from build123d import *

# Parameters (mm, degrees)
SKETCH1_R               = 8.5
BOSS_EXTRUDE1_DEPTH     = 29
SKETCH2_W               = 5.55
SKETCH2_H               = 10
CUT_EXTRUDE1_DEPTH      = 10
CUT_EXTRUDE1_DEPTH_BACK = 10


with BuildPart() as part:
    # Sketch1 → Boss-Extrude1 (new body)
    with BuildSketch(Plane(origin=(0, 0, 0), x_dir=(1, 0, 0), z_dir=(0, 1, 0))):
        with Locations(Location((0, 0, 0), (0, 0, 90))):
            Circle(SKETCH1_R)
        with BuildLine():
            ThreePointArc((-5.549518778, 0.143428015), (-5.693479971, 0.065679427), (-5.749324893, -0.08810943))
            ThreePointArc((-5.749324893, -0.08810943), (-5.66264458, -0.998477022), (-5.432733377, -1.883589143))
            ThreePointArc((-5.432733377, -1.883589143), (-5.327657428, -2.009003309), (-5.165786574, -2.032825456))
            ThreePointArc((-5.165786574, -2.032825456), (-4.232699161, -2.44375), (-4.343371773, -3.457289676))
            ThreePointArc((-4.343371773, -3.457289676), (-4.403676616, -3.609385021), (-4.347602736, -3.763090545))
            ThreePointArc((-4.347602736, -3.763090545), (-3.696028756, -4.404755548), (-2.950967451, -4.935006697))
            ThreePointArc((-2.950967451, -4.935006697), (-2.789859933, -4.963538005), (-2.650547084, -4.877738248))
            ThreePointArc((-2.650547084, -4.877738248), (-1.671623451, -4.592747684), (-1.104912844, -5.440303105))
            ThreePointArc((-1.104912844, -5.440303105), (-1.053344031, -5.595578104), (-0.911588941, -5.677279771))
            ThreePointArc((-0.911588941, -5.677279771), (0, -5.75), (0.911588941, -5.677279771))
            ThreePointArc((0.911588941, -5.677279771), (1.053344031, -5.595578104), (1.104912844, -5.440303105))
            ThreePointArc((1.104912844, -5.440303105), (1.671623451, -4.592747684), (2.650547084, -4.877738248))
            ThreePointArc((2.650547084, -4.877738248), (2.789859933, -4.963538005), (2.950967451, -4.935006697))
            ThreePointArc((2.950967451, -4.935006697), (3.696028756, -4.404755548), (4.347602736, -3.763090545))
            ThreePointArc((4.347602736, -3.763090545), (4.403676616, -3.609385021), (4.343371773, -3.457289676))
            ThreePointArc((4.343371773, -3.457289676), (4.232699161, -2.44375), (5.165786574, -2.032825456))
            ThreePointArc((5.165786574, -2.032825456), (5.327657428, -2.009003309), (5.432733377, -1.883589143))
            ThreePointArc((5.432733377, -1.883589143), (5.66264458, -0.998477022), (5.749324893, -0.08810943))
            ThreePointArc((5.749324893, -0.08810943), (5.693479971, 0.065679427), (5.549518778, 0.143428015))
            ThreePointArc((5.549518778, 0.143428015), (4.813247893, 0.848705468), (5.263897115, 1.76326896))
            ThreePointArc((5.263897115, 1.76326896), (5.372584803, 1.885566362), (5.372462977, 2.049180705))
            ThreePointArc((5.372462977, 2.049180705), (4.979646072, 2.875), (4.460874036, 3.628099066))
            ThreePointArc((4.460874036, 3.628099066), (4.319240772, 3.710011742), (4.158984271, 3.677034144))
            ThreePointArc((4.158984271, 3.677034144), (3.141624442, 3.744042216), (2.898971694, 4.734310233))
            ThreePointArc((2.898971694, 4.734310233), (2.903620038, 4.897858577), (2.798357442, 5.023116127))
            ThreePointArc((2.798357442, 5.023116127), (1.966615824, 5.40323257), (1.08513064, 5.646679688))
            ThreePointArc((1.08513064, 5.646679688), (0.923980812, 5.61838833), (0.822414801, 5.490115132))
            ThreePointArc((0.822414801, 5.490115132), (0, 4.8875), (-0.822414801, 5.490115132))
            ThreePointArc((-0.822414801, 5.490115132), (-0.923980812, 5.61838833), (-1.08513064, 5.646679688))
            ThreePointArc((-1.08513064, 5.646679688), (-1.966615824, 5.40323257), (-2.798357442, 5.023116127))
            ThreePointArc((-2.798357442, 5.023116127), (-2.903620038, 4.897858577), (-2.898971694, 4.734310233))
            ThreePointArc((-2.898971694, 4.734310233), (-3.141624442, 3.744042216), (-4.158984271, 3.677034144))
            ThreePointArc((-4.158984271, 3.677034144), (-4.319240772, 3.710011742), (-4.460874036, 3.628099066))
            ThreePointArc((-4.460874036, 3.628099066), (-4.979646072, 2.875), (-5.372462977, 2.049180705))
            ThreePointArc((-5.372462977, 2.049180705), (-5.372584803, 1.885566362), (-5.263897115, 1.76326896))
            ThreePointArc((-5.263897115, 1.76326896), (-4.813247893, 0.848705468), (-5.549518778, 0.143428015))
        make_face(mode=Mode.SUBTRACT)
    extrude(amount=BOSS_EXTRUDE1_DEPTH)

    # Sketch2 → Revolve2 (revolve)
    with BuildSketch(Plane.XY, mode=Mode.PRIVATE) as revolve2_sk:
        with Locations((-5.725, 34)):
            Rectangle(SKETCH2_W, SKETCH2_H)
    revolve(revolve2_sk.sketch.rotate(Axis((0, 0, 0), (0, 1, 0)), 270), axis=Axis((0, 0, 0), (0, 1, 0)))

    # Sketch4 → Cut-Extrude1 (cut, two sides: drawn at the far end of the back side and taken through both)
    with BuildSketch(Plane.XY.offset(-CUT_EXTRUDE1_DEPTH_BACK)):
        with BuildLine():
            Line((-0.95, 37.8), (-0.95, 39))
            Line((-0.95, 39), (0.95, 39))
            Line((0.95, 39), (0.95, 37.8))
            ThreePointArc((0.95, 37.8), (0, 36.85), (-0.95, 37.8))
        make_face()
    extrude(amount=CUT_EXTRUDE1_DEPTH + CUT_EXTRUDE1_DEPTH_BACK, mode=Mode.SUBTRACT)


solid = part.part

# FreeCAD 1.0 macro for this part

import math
import FreeCAD as App
import Part
import Sketcher
Q = App.Units.Quantity

doc = App.newDocument("Part")
params = doc.addObject("Spreadsheet::Sheet", "Params")
for row, (alias, value) in enumerate([
    ("sketch1_diameter", "17 mm"),
    ("sketch1_radius", "0.23 mm"),
    ("sketch1_radius2", "5.75 mm"),
    ("pad1_length", "29 mm"),
    ("sketch2_height", "10 mm"),
    ("sketch2_width", "5.55 mm"),
    ("revolution_angle", "360 deg"),
    ("sketch3_radius", "0.95 mm"),
    ("sketch3_height", "1.2 mm"),
], start=1):
    params.set(f"A{row}", alias)
    params.set(f"B{row}", "=" + value)
    params.setAlias(f"B{row}", alias)

body = doc.addObject("PartDesign::Body", "Body")

# Sketch on XZ plane
sketch1 = body.newObject("Sketcher::SketchObject", "Sketch")
sketch1.AttachmentSupport = (doc.getObject("XZ_Plane"), [""])
sketch1.MapMode = "FlatFace"
sketch1.addGeometry([
    Part.Circle(App.Vector(0, 0, 0), App.Vector(0, 0, 1), 8.5),  # 0
    Part.ArcOfCircle(Part.Circle(App.Vector(-5.519352, 0.084585, 0), App.Vector(0, 0, 1), 0.23), math.radians(179.122001), math.radians(262.46335)),  # 1
    Part.ArcOfCircle(Part.Circle(App.Vector(-5.662645, -0.998477, 0), App.Vector(0, 0, 1), 0.8625), math.radians(-62.46335), math.radians(82.46335)),  # 2
    Part.ArcOfCircle(Part.Circle(App.Vector(-5.157564, -1.967213, 0), App.Vector(0, 0, 1), 0.23), math.radians(117.536649), math.radians(200.878)),  # 3
    Part.ArcOfCircle(Part.Circle(App.Vector(0, 0, 0), App.Vector(0, 0, 1), 5.75), math.radians(-159.122001), math.radians(-140.877999)),  # 4
    Part.ArcOfCircle(Part.Circle(App.Vector(-4.282439, -3.482975, 0), App.Vector(0, 0, 1), 0.23), math.radians(-140.878), math.radians(-57.536649)),  # 5
    Part.ArcOfCircle(Part.Circle(App.Vector(-3.696029, -4.404756, 0), App.Vector(0, 0, 1), 0.8625), math.radians(-22.46335), math.radians(122.46335)),  # 6
    Part.ArcOfCircle(Part.Circle(App.Vector(-2.686423, -4.822191, 0), App.Vector(0, 0, 1), 0.23), math.radians(157.53665), math.radians(240.877999)),  # 7
    Part.ArcOfCircle(Part.Circle(App.Vector(0, 0, 0), App.Vector(0, 0, 1), 5.75), math.radians(-119.122001), math.radians(-100.877999)),  # 8
    Part.ArcOfCircle(Part.Circle(App.Vector(-1.041725, -5.420813, 0), App.Vector(0, 0, 1), 0.23), math.radians(-100.877999), math.radians(-17.53665)),  # 9
    Part.ArcOfCircle(Part.Circle(App.Vector(0, -5.75, 0), App.Vector(0, 0, 1), 0.8625), math.radians(17.53665), math.radians(162.46335)),  # 10
    Part.ArcOfCircle(Part.Circle(App.Vector(1.041725, -5.420813, 0), App.Vector(0, 0, 1), 0.23), math.radians(-162.46335), math.radians(-79.122001)),  # 11
    Part.ArcOfCircle(Part.Circle(App.Vector(0, 0, 0), App.Vector(0, 0, 1), 5.75), math.radians(-79.122001), math.radians(-60.877999)),  # 12
    Part.ArcOfCircle(Part.Circle(App.Vector(2.686423, -4.822191, 0), App.Vector(0, 0, 1), 0.23), math.radians(-60.877999), math.radians(22.46335)),  # 13
    Part.ArcOfCircle(Part.Circle(App.Vector(3.696029, -4.404756, 0), App.Vector(0, 0, 1), 0.8625), math.radians(57.53665), math.radians(202.46335)),  # 14
    Part.ArcOfCircle(Part.Circle(App.Vector(4.282439, -3.482975, 0), App.Vector(0, 0, 1), 0.23), math.radians(-122.463351), math.radians(-39.122)),  # 15
    Part.ArcOfCircle(Part.Circle(App.Vector(0, 0, 0), App.Vector(0, 0, 1), 5.75), math.radians(-39.122001), math.radians(-20.877999)),  # 16
    Part.ArcOfCircle(Part.Circle(App.Vector(5.157564, -1.967213, 0), App.Vector(0, 0, 1), 0.23), math.radians(-20.878), math.radians(62.463351)),  # 17
    Part.ArcOfCircle(Part.Circle(App.Vector(5.662645, -0.998477, 0), App.Vector(0, 0, 1), 0.8625), math.radians(97.53665), math.radians(242.46335)),  # 18
    Part.ArcOfCircle(Part.Circle(App.Vector(5.519352, 0.084585, 0), App.Vector(0, 0, 1), 0.23), math.radians(-82.46335), math.radians(0.877999)),  # 19
    Part.ArcOfCircle(Part.Circle(App.Vector(0, 0, 0), App.Vector(0, 0, 1), 5.75), math.radians(0.877999), math.radians(19.122001)),  # 20
    Part.ArcOfCircle(Part.Circle(App.Vector(5.215424, 1.808246, 0), App.Vector(0, 0, 1), 0.23), math.radians(19.122001), math.radians(102.46335)),  # 21
    Part.ArcOfCircle(Part.Circle(App.Vector(4.979646, 2.875, 0), App.Vector(0, 0, 1), 0.8625), math.radians(137.53665), math.radians(282.46335)),  # 22
    Part.ArcOfCircle(Part.Circle(App.Vector(4.173699, 3.612567, 0), App.Vector(0, 0, 1), 0.23), math.radians(-42.46335), math.radians(40.877999)),  # 23
    Part.ArcOfCircle(Part.Circle(App.Vector(0, 0, 0), App.Vector(0, 0, 1), 5.75), math.radians(40.877999), math.radians(59.122001)),  # 24
    Part.ArcOfCircle(Part.Circle(App.Vector(2.832929, 4.737606, 0), App.Vector(0, 0, 1), 0.23), math.radians(59.122), math.radians(142.463351)),  # 25
    Part.ArcOfCircle(Part.Circle(App.Vector(1.966616, 5.403233, 0), App.Vector(0, 0, 1), 0.8625), math.radians(177.53665), math.radians(322.46335)),  # 26
    Part.ArcOfCircle(Part.Circle(App.Vector(0.875125, 5.450189, 0), App.Vector(0, 0, 1), 0.23), math.radians(-2.46335), math.radians(80.877999)),  # 27
    Part.ArcOfCircle(Part.Circle(App.Vector(0, 0, 0), App.Vector(0, 0, 1), 5.75), math.radians(80.877999), math.radians(99.122001)),  # 28
    Part.ArcOfCircle(Part.Circle(App.Vector(-0.875125, 5.450189, 0), App.Vector(0, 0, 1), 0.23), math.radians(99.122001), math.radians(182.46335)),  # 29
    Part.ArcOfCircle(Part.Circle(App.Vector(-1.966616, 5.403233, 0), App.Vector(0, 0, 1), 0.8625), math.radians(-142.46335), math.radians(2.46335)),  # 30
    Part.ArcOfCircle(Part.Circle(App.Vector(-2.832929, 4.737606, 0), App.Vector(0, 0, 1), 0.23), math.radians(37.536649), math.radians(120.878)),  # 31
    Part.ArcOfCircle(Part.Circle(App.Vector(0, 0, 0), App.Vector(0, 0, 1), 5.75), math.radians(120.877999), math.radians(139.122001)),  # 32
    Part.ArcOfCircle(Part.Circle(App.Vector(-4.173699, 3.612567, 0), App.Vector(0, 0, 1), 0.23), math.radians(139.122001), math.radians(222.46335)),  # 33
    Part.ArcOfCircle(Part.Circle(App.Vector(-4.979646, 2.875, 0), App.Vector(0, 0, 1), 0.8625), math.radians(-102.46335), math.radians(42.46335)),  # 34
    Part.ArcOfCircle(Part.Circle(App.Vector(-5.215424, 1.808246, 0), App.Vector(0, 0, 1), 0.23), math.radians(77.53665), math.radians(160.877999)),  # 35
    Part.ArcOfCircle(Part.Circle(App.Vector(0, 0, 0), App.Vector(0, 0, 1), 5.75), math.radians(160.877999), math.radians(179.122001)),  # 36
], False)
sketch1.addConstraint([
    Sketcher.Constraint("Tangent", 1, 2, 2, 2),
    Sketcher.Constraint("Tangent", 2, 1, 3, 1),
    Sketcher.Constraint("Tangent", 3, 2, 4, 1),
    Sketcher.Constraint("Tangent", 4, 2, 5, 1),
    Sketcher.Constraint("Tangent", 5, 2, 6, 2),
    Sketcher.Constraint("Tangent", 6, 1, 7, 1),
    Sketcher.Constraint("Tangent", 7, 2, 8, 1),
    Sketcher.Constraint("Tangent", 8, 2, 9, 1),
    Sketcher.Constraint("Tangent", 9, 2, 10, 2),
    Sketcher.Constraint("Tangent", 10, 1, 11, 1),
    Sketcher.Constraint("Tangent", 11, 2, 12, 1),
    Sketcher.Constraint("Tangent", 12, 2, 13, 1),
    Sketcher.Constraint("Tangent", 13, 2, 14, 2),
    Sketcher.Constraint("Tangent", 14, 1, 15, 1),
    Sketcher.Constraint("Tangent", 15, 2, 16, 1),
    Sketcher.Constraint("Tangent", 16, 2, 17, 1),
    Sketcher.Constraint("Tangent", 17, 2, 18, 2),
    Sketcher.Constraint("Tangent", 18, 1, 19, 1),
    Sketcher.Constraint("Tangent", 19, 2, 20, 1),
    Sketcher.Constraint("Tangent", 20, 2, 21, 1),
    Sketcher.Constraint("Tangent", 21, 2, 22, 2),
    Sketcher.Constraint("Tangent", 22, 1, 23, 1),
    Sketcher.Constraint("Tangent", 23, 2, 24, 1),
    Sketcher.Constraint("Tangent", 24, 2, 25, 1),
    Sketcher.Constraint("Tangent", 25, 2, 26, 2),
    Sketcher.Constraint("Tangent", 26, 1, 27, 1),
    Sketcher.Constraint("Tangent", 27, 2, 28, 1),
    Sketcher.Constraint("Tangent", 28, 2, 29, 1),
    Sketcher.Constraint("Tangent", 29, 2, 30, 2),
    Sketcher.Constraint("Tangent", 30, 1, 31, 1),
    Sketcher.Constraint("Tangent", 31, 2, 32, 1),
    Sketcher.Constraint("Tangent", 32, 2, 33, 1),
    Sketcher.Constraint("Tangent", 33, 2, 34, 2),
    Sketcher.Constraint("Tangent", 34, 1, 35, 1),
    Sketcher.Constraint("Tangent", 35, 2, 36, 1),
    Sketcher.Constraint("Tangent", 36, 2, 1, 1),
    Sketcher.Constraint("Coincident", 0, 3, -1, 1),
    Sketcher.Constraint("Coincident", 4, 3, -1, 1),
    Sketcher.Constraint("Coincident", 8, 3, -1, 1),
    Sketcher.Constraint("Coincident", 12, 3, -1, 1),
    Sketcher.Constraint("Coincident", 16, 3, -1, 1),
    Sketcher.Constraint("Coincident", 20, 3, -1, 1),
    Sketcher.Constraint("Coincident", 24, 3, -1, 1),
    Sketcher.Constraint("Coincident", 28, 3, -1, 1),
    Sketcher.Constraint("Coincident", 32, 3, -1, 1),
    Sketcher.Constraint("Coincident", 36, 3, -1, 1),
    Sketcher.Constraint("Equal", 1, 3),
    Sketcher.Constraint("Equal", 3, 5),
    Sketcher.Constraint("Equal", 2, 6),
    Sketcher.Constraint("Equal", 5, 7),
    Sketcher.Constraint("Equal", 4, 8),
    Sketcher.Constraint("Equal", 7, 9),
    Sketcher.Constraint("Equal", 6, 10),
    Sketcher.Constraint("Equal", 9, 11),
    Sketcher.Constraint("Equal", 8, 12),
    Sketcher.Constraint("Equal", 11, 13),
    Sketcher.Constraint("Equal", 10, 14),
    Sketcher.Constraint("Equal", 13, 15),
    Sketcher.Constraint("Equal", 12, 16),
    Sketcher.Constraint("Equal", 15, 17),
    Sketcher.Constraint("Equal", 14, 18),
    Sketcher.Constraint("Equal", 17, 19),
    Sketcher.Constraint("Equal", 16, 20),
    Sketcher.Constraint("Equal", 19, 21),
    Sketcher.Constraint("Equal", 18, 22),
    Sketcher.Constraint("Equal", 21, 23),
    Sketcher.Constraint("Equal", 20, 24),
    Sketcher.Constraint("Equal", 23, 25),
    Sketcher.Constraint("Equal", 22, 26),
    Sketcher.Constraint("Equal", 25, 27),
    Sketcher.Constraint("Equal", 24, 28),
    Sketcher.Constraint("Equal", 27, 29),
    Sketcher.Constraint("Equal", 26, 30),
    Sketcher.Constraint("Equal", 29, 31),
    Sketcher.Constraint("Equal", 28, 32),
    Sketcher.Constraint("Equal", 31, 33),
    Sketcher.Constraint("Equal", 30, 34),
    Sketcher.Constraint("Equal", 33, 35),
    Sketcher.Constraint("Equal", 32, 36),
    Sketcher.Constraint("Symmetric", 6, 3, 14, 3, -2),
    Sketcher.Constraint("Symmetric", 2, 3, 18, 3, -2),
    Sketcher.Constraint("Symmetric", 26, 3, 30, 3, -2),
    Sketcher.Constraint("Symmetric", 22, 3, 34, 3, -2),
    Sketcher.Constraint("PointOnObject", 10, 3, -2),
    Sketcher.Constraint("Diameter", 0, Q("17 mm")),
    Sketcher.Constraint("Radius", 1, Q("0.23 mm")),
    Sketcher.Constraint("Radius", 4, Q("5.75 mm")),
    Sketcher.Constraint("Radius", 2, Q("0.8625 mm")),
    Sketcher.Constraint("DistanceY", 10, 3, -1, 1, Q("5.75 mm")),
    Sketcher.Constraint("DistanceY", -1, 1, 22, 3, Q("2.875 mm")),
    Sketcher.Constraint("DistanceX", -1, 1, 23, 3, Q("4.173699 mm")),
    Sketcher.Constraint("DistanceY", 4, 2, -1, 1, Q("3.628099 mm")),
    Sketcher.Constraint("DistanceX", 1, 3, -1, 1, Q("5.519352 mm")),
    Sketcher.Constraint("DistanceX", 6, 3, -1, 1, Q("3.696029 mm")),
    Sketcher.Constraint("DistanceX", -1, 1, 25, 3, Q("2.832929 mm")),
    Sketcher.Constraint("DistanceY", -1, 1, 27, 3, Q("5.450189 mm")),
    Sketcher.Constraint("DistanceX", 1, 2, -1, 1, Q("5.549519 mm")),
])
sketch1.setExpression("Constraints[84]", "Params.sketch1_diameter")
sketch1.setExpression("Constraints[85]", "Params.sketch1_radius")
sketch1.setExpression("Constraints[86]", "Params.sketch1_radius2")
pad1 = body.newObject("PartDesign::Pad", "Pad")
pad1.Profile = sketch1
pad1.setExpression("Length", "Params.pad1_length")
pad1.Reversed = True

# Sketch on XY plane
sketch2 = body.newObject("Sketcher::SketchObject", "Sketch001")
sketch2.AttachmentSupport = (doc.getObject("XY_Plane"), [""])
sketch2.MapMode = "FlatFace"
sketch2.addGeometry([
    Part.LineSegment(App.Vector(-8.5, 39, 0), App.Vector(-8.5, 29, 0)),
    Part.LineSegment(App.Vector(-8.5, 29, 0), App.Vector(-2.95, 29, 0)),
    Part.LineSegment(App.Vector(-2.95, 29, 0), App.Vector(-2.95, 39, 0)),
    Part.LineSegment(App.Vector(-2.95, 39, 0), App.Vector(-8.5, 39, 0)),
], False)
sketch2.addConstraint([
    Sketcher.Constraint("Coincident", 0, 2, 1, 1),
    Sketcher.Constraint("Coincident", 1, 2, 2, 1),
    Sketcher.Constraint("Coincident", 2, 2, 3, 1),
    Sketcher.Constraint("Coincident", 3, 2, 0, 1),
    Sketcher.Constraint("Vertical", 0),
    Sketcher.Constraint("Horizontal", 1),
    Sketcher.Constraint("Vertical", 2),
    Sketcher.Constraint("Horizontal", 3),
    Sketcher.Constraint("DistanceY", 0, 2, 0, 1, Q("10 mm")),
    Sketcher.Constraint("DistanceY", -1, 1, 0, 2, Q("29 mm")),
    Sketcher.Constraint("DistanceX", 1, 1, 1, 2, Q("5.55 mm")),
    Sketcher.Constraint("DistanceX", 0, 2, -1, 1, Q("8.5 mm")),
])
sketch2.setExpression("Constraints[8]", "Params.sketch2_height")
sketch2.setExpression("Constraints[10]", "Params.sketch2_width")
revolution = body.newObject("PartDesign::Revolution", "Revolution")
revolution.Profile = sketch2
revolution.ReferenceAxis = (sketch2, ["V_Axis"])
revolution.setExpression("Angle", "Params.revolution_angle")

# Sketch on XY plane
sketch3 = body.newObject("Sketcher::SketchObject", "Sketch002")
sketch3.AttachmentSupport = (doc.getObject("XY_Plane"), [""])
sketch3.MapMode = "FlatFace"
sketch3.addGeometry([
    Part.LineSegment(App.Vector(-0.95, 39, 0), App.Vector(-0.95, 37.8, 0)),
    Part.ArcOfCircle(Part.Circle(App.Vector(0, 37.8, 0), App.Vector(0, 0, 1), 0.95), math.radians(180), math.radians(360)),
    Part.LineSegment(App.Vector(0.95, 37.8, 0), App.Vector(0.95, 39, 0)),
    Part.LineSegment(App.Vector(0.95, 39, 0), App.Vector(-0.95, 39, 0)),
], False)
sketch3.addConstraint([
    Sketcher.Constraint("Tangent", 0, 2, 1, 1),
    Sketcher.Constraint("Tangent", 1, 2, 2, 1),
    Sketcher.Constraint("Coincident", 2, 2, 3, 1),
    Sketcher.Constraint("Coincident", 3, 2, 0, 1),
    Sketcher.Constraint("Vertical", 0),
    Sketcher.Constraint("Vertical", 2),
    Sketcher.Constraint("Horizontal", 3),
    Sketcher.Constraint("PointOnObject", 1, 3, -2),
    Sketcher.Constraint("Radius", 1, Q("0.95 mm")),
    Sketcher.Constraint("DistanceY", 0, 2, 0, 1, Q("1.2 mm")),
    Sketcher.Constraint("DistanceY", -1, 1, 2, 2, Q("39 mm")),
])
sketch3.setExpression("Constraints[8]", "Params.sketch3_radius")
sketch3.setExpression("Constraints[9]", "Params.sketch3_height")
pocket1 = body.newObject("PartDesign::Pocket", "Pocket")
pocket1.Profile = sketch3
pocket1.Type = "ThroughAll"
pocket1.Midplane = True

doc.recompute()
